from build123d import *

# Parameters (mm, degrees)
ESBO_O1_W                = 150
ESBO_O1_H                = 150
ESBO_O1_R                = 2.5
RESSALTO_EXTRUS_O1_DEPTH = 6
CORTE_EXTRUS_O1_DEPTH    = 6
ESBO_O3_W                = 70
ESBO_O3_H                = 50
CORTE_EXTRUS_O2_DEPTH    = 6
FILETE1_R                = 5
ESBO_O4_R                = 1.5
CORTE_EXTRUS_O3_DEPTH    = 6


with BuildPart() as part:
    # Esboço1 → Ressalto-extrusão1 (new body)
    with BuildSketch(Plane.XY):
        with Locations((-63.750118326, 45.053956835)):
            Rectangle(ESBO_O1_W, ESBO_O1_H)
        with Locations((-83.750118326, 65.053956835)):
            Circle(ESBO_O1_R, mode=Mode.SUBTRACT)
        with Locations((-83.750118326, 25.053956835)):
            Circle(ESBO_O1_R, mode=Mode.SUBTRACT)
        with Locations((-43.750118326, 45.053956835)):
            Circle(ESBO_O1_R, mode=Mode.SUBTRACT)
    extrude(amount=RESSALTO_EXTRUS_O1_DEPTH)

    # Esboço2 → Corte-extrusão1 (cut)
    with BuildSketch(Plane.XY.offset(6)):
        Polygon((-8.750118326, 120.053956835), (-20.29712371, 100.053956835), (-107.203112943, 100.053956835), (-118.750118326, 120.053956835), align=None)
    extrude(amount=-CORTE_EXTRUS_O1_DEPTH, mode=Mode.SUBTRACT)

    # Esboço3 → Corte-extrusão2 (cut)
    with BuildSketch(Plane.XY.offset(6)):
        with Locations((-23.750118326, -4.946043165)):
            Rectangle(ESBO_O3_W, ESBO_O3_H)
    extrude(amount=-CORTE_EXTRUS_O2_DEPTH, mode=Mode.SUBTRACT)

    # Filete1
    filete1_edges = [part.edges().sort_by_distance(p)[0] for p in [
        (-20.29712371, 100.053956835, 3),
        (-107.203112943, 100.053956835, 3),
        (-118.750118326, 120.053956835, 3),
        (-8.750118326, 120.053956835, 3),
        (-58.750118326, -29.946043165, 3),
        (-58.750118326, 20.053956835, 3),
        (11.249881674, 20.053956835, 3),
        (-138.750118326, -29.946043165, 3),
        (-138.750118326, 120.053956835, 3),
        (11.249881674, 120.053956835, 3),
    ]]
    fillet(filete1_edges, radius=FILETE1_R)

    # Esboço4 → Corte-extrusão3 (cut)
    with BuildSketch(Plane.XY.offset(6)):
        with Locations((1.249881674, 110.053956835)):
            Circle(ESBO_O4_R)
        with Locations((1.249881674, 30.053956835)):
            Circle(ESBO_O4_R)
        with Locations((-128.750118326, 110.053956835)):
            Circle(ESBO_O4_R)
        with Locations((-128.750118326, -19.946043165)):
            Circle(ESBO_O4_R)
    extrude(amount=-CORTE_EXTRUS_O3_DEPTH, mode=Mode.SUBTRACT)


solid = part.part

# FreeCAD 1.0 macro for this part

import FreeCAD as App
import Part
import Sketcher
from FreeCAD import Vector
Q = App.Units.Quantity


def edges_at(feature, points):
    """Names of the edges that pass closest to the given points."""
    edges = feature.Shape.Edges
    near = lambda p: min(range(len(edges)), key=lambda i: edges[i].distToShape(Part.Vertex(*p))[0])
    return sorted({f"Edge{near(p) + 1}" for p in points})

doc = App.newDocument("Part")
body = doc.addObject("PartDesign::Body", "Body")

sketch1 = body.newObject("Sketcher::SketchObject", "Sketch")
sketch1.AttachmentSupport = (doc.getObject("XY_Plane"), [""])
sketch1.MapMode = "FlatFace"
sketch1.addGeometry([
    Part.LineSegment(Vector(-138.750118, 120.053957, 0), Vector(-138.750118, -29.946043, 0)),
    Part.LineSegment(Vector(-138.750118, -29.946043, 0), Vector(11.249882, -29.946043, 0)),
    Part.LineSegment(Vector(11.249882, -29.946043, 0), Vector(11.249882, 120.053957, 0)),
    Part.LineSegment(Vector(11.249882, 120.053957, 0), Vector(-138.750118, 120.053957, 0)),
    Part.Circle(Vector(-83.750118, 25.053957, 0), Vector(0, 0, 1), 2.5),
    Part.Circle(Vector(-83.750118, 65.053957, 0), Vector(0, 0, 1), 2.5),
    Part.Circle(Vector(-43.750118, 45.053957, 0), Vector(0, 0, 1), 2.5),
], False)
sketch1.addConstraint([
    Sketcher.Constraint("Coincident", 0, 2, 1, 1),
    Sketcher.Constraint("Coincident", 1, 2, 2, 1),
    Sketcher.Constraint("Coincident", 2, 2, 3, 1),
    Sketcher.Constraint("Coincident", 3, 2, 0, 1),
    Sketcher.Constraint("Vertical", 0),
    Sketcher.Constraint("Horizontal", 1),
    Sketcher.Constraint("Vertical", 2),
    Sketcher.Constraint("Horizontal", 3),
    Sketcher.Constraint("Equal", 4, 5),
    Sketcher.Constraint("Equal", 5, 6),
    Sketcher.Constraint("Vertical", 4, 3, 5, 3),
    Sketcher.Constraint("Equal", 3, 0),
    Sketcher.Constraint("Diameter", 4, 5.0),
    Sketcher.Constraint("DistanceX", 1, 1, 1, 2, 150.0),
    Sketcher.Constraint("DistanceY", 4, 3, 5, 3, 40.0),
    Sketcher.Constraint("DistanceX", 5, 3, 6, 3, 40.0),
    Sketcher.Constraint("DistanceY", 6, 3, 5, 3, 20.0),
    Sketcher.Constraint("DistanceX", 0, 2, 4, 3, 55.0),
    Sketcher.Constraint("DistanceY", 0, 2, 4, 3, 55.0),
    Sketcher.Constraint("DistanceX", 4, 3, -1, 1, 83.750118),
    Sketcher.Constraint("DistanceY", -1, 1, 4, 3, 25.053957),
])
pad1 = body.newObject("PartDesign::Pad", "Pad")
pad1.Profile = sketch1
pad1.Length = 6

sketch2 = body.newObject("Sketcher::SketchObject", "Sketch001")
sketch2.AttachmentSupport = (doc.getObject("XY_Plane"), [""])
sketch2.MapMode = "FlatFace"
sketch2.AttachmentOffset = App.Placement(Vector(0, 0, 6), App.Rotation())
sketch2.addGeometry([
    Part.LineSegment(Vector(-20.297124, 100.053957, 0), Vector(-8.750118, 120.053957, 0)),
    Part.LineSegment(Vector(-8.750118, 120.053957, 0), Vector(-118.750118, 120.053957, 0)),
    Part.LineSegment(Vector(-118.750118, 120.053957, 0), Vector(-107.203113, 100.053957, 0)),
    Part.LineSegment(Vector(-107.203113, 100.053957, 0), Vector(-20.297124, 100.053957, 0)),
], False)
sketch2.addConstraint([
    Sketcher.Constraint("Coincident", 0, 2, 1, 1),
    Sketcher.Constraint("Coincident", 1, 2, 2, 1),
    Sketcher.Constraint("Coincident", 2, 2, 3, 1),
    Sketcher.Constraint("Coincident", 3, 2, 0, 1),
    Sketcher.Constraint("Horizontal", 1),
    Sketcher.Constraint("Horizontal", 3),
    Sketcher.Constraint("Equal", 0, 2),
    Sketcher.Constraint("DistanceX", 1, 2, 1, 1, 110.0),
    Sketcher.Constraint("Angle", 0, Q("60 deg")),
    Sketcher.Constraint("DistanceY", 2, 2, 1, 2, 20.0),
    Sketcher.Constraint("DistanceX", 0, 2, -1, 1, 8.750118),
    Sketcher.Constraint("DistanceY", -1, 1, 0, 2, 120.053957),
])
pocket1 = body.newObject("PartDesign::Pocket", "Pocket")
pocket1.Profile = sketch2
pocket1.Length = 6

sketch3 = body.newObject("Sketcher::SketchObject", "Sketch002")
sketch3.AttachmentSupport = (doc.getObject("XY_Plane"), [""])
sketch3.MapMode = "FlatFace"
sketch3.AttachmentOffset = App.Placement(Vector(0, 0, 6), App.Rotation())
sketch3.addGeometry([
    Part.LineSegment(Vector(-58.750118, 20.053957, 0), Vector(-58.750118, -29.946043, 0)),
    Part.LineSegment(Vector(-58.750118, -29.946043, 0), Vector(11.249882, -29.946043, 0)),
    Part.LineSegment(Vector(11.249882, -29.946043, 0), Vector(11.249882, 20.053957, 0)),
    Part.LineSegment(Vector(11.249882, 20.053957, 0), Vector(-58.750118, 20.053957, 0)),
], False)
sketch3.addConstraint([
    Sketcher.Constraint("Coincident", 0, 2, 1, 1),
    Sketcher.Constraint("Coincident", 1, 2, 2, 1),
    Sketcher.Constraint("Coincident", 2, 2, 3, 1),
    Sketcher.Constraint("Coincident", 3, 2, 0, 1),
    Sketcher.Constraint("Vertical", 0),
    Sketcher.Constraint("Horizontal", 1),
    Sketcher.Constraint("Vertical", 2),
    Sketcher.Constraint("Horizontal", 3),
    Sketcher.Constraint("DistanceX", 1, 1, 1, 2, 70.0),
    Sketcher.Constraint("DistanceY", 0, 2, 0, 1, 50.0),
    Sketcher.Constraint("DistanceX", 0, 2, -1, 1, 58.750118),
    Sketcher.Constraint("DistanceY", 0, 2, -1, 1, 29.946043),
])
pocket2 = body.newObject("PartDesign::Pocket", "Pocket001")
pocket2.Profile = sketch3
pocket2.Length = 6
doc.recompute()

fillet = body.newObject("PartDesign::Fillet", "Fillet")
fillet.Base = (pocket2, edges_at(pocket2, [
    (-20.297, 100.054, 3),
    (-107.203, 100.054, 3),
    (-118.75, 120.054, 3),
    (-8.75, 120.054, 3),
    (-58.75, -29.946, 3),
    (-58.75, 20.054, 3),
    (11.25, 20.054, 3),
    (-138.75, -29.946, 3),
    (-138.75, 120.054, 3),
    (11.25, 120.054, 3),
]))
fillet.Radius = 5

sketch4 = body.newObject("Sketcher::SketchObject", "Sketch003")
sketch4.AttachmentSupport = (doc.getObject("XY_Plane"), [""])
sketch4.MapMode = "FlatFace"
sketch4.AttachmentOffset = App.Placement(Vector(0, 0, 6), App.Rotation())
sketch4.addGeometry([
    Part.Circle(Vector(1.249882, 110.053957, 0), Vector(0, 0, 1), 1.5),
    Part.Circle(Vector(1.249882, 30.053957, 0), Vector(0, 0, 1), 1.5),
    Part.Circle(Vector(-128.750118, 110.053957, 0), Vector(0, 0, 1), 1.5),
    Part.Circle(Vector(-128.750118, -19.946043, 0), Vector(0, 0, 1), 1.5),
], False)
sketch4.addConstraint([
    Sketcher.Constraint("Equal", 0, 1),
    Sketcher.Constraint("Equal", 1, 2),
    Sketcher.Constraint("Equal", 2, 3),
    Sketcher.Constraint("Horizontal", 0, 3, 2, 3),
    Sketcher.Constraint("Vertical", 0, 3, 1, 3),
    Sketcher.Constraint("Vertical", 2, 3, 3, 3),
    Sketcher.Constraint("Diameter", 0, 3.0),
    Sketcher.Constraint("DistanceY", 1, 3, 0, 3, 80.0),
    Sketcher.Constraint("DistanceX", 2, 3, 0, 3, 130.0),
    Sketcher.Constraint("DistanceY", 3, 3, 2, 3, 130.0),
    Sketcher.Constraint("DistanceX", -1, 1, 0, 3, 1.249882),
    Sketcher.Constraint("DistanceY", -1, 1, 0, 3, 110.053957),
])
pocket3 = body.newObject("PartDesign::Pocket", "Pocket002")
pocket3.Profile = sketch4
pocket3.Length = 6

doc.recompute()
